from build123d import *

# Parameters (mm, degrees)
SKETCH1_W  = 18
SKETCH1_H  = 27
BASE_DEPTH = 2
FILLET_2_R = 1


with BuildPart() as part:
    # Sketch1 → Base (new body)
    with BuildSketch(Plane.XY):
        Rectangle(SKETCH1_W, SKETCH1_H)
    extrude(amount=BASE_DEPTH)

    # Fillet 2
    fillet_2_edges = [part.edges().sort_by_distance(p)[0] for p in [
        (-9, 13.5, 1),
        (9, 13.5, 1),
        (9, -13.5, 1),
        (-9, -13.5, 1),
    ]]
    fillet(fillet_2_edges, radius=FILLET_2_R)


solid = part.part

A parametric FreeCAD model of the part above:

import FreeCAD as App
import Part
import Sketcher

V = App.Vector


def edges_at(feature, points):
    """Names of the edges that pass closest to the given points."""
    edges = feature.Shape.Edges
    near = lambda p: min(range(len(edges)), key=lambda i: edges[i].distToShape(Part.Vertex(*p))[0])
    return sorted({f"Edge{near(p) + 1}" for p in points})

doc = App.newDocument("Part")
body = doc.addObject("PartDesign::Body", "Body")

sketch1 = doc.addObject("Sketcher::SketchObject", "Sketch")
body.addObject(sketch1)
sketch1.AttachmentSupport = (doc.XY_Plane, [""])
sketch1.MapMode = "FlatFace"
sketch1.addGeometry([
    Part.LineSegment(V(-9, 14, 0), V(-9, -14, 0)),
    Part.LineSegment(V(-9, -14, 0), V(9, -14, 0)),
    Part.LineSegment(V(9, -14, 0), V(9, 14, 0)),
    Part.LineSegment(V(9, 14, 0), V(-9, 14, 0)),
], False)
sketch1.addConstraint([
    Sketcher.Constraint("Coincident", 0, 2, 1, 1),
    Sketcher.Constraint("Coincident", 1, 2, 2, 1),
    Sketcher.Constraint("Coincident", 2, 2, 3, 1),
    Sketcher.Constraint("Coincident", 3, 2, 0, 1),
    Sketcher.Constraint("Vertical", 0),
    Sketcher.Constraint("Horizontal", 1),
    Sketcher.Constraint("Vertical", 2),
    Sketcher.Constraint("Horizontal", 3),
    Sketcher.Constraint("Symmetric", 0, 2, 2, 2, -1, 1),
    Sketcher.Constraint("DistanceX", 1, 1, 1, 2, 18.0),
    Sketcher.Constraint("DistanceY", 0, 2, 0, 1, 27.0),
])
pad1 = doc.addObject("PartDesign::Pad", "Pad")
body.addObject(pad1)
pad1.Profile = sketch1
pad1.Length = 2
doc.recompute()

fillet = doc.addObject("PartDesign::Fillet", "Fillet")
body.addObject(fillet)
fillet.Base = (pad1, edges_at(pad1, [
    (-9, 13.5, 1),
    (9, 13.5, 1),
    (9, -13.5, 1),
    (-9, -13.5, 1),
]))
fillet.Radius = 1

doc.recompute()
